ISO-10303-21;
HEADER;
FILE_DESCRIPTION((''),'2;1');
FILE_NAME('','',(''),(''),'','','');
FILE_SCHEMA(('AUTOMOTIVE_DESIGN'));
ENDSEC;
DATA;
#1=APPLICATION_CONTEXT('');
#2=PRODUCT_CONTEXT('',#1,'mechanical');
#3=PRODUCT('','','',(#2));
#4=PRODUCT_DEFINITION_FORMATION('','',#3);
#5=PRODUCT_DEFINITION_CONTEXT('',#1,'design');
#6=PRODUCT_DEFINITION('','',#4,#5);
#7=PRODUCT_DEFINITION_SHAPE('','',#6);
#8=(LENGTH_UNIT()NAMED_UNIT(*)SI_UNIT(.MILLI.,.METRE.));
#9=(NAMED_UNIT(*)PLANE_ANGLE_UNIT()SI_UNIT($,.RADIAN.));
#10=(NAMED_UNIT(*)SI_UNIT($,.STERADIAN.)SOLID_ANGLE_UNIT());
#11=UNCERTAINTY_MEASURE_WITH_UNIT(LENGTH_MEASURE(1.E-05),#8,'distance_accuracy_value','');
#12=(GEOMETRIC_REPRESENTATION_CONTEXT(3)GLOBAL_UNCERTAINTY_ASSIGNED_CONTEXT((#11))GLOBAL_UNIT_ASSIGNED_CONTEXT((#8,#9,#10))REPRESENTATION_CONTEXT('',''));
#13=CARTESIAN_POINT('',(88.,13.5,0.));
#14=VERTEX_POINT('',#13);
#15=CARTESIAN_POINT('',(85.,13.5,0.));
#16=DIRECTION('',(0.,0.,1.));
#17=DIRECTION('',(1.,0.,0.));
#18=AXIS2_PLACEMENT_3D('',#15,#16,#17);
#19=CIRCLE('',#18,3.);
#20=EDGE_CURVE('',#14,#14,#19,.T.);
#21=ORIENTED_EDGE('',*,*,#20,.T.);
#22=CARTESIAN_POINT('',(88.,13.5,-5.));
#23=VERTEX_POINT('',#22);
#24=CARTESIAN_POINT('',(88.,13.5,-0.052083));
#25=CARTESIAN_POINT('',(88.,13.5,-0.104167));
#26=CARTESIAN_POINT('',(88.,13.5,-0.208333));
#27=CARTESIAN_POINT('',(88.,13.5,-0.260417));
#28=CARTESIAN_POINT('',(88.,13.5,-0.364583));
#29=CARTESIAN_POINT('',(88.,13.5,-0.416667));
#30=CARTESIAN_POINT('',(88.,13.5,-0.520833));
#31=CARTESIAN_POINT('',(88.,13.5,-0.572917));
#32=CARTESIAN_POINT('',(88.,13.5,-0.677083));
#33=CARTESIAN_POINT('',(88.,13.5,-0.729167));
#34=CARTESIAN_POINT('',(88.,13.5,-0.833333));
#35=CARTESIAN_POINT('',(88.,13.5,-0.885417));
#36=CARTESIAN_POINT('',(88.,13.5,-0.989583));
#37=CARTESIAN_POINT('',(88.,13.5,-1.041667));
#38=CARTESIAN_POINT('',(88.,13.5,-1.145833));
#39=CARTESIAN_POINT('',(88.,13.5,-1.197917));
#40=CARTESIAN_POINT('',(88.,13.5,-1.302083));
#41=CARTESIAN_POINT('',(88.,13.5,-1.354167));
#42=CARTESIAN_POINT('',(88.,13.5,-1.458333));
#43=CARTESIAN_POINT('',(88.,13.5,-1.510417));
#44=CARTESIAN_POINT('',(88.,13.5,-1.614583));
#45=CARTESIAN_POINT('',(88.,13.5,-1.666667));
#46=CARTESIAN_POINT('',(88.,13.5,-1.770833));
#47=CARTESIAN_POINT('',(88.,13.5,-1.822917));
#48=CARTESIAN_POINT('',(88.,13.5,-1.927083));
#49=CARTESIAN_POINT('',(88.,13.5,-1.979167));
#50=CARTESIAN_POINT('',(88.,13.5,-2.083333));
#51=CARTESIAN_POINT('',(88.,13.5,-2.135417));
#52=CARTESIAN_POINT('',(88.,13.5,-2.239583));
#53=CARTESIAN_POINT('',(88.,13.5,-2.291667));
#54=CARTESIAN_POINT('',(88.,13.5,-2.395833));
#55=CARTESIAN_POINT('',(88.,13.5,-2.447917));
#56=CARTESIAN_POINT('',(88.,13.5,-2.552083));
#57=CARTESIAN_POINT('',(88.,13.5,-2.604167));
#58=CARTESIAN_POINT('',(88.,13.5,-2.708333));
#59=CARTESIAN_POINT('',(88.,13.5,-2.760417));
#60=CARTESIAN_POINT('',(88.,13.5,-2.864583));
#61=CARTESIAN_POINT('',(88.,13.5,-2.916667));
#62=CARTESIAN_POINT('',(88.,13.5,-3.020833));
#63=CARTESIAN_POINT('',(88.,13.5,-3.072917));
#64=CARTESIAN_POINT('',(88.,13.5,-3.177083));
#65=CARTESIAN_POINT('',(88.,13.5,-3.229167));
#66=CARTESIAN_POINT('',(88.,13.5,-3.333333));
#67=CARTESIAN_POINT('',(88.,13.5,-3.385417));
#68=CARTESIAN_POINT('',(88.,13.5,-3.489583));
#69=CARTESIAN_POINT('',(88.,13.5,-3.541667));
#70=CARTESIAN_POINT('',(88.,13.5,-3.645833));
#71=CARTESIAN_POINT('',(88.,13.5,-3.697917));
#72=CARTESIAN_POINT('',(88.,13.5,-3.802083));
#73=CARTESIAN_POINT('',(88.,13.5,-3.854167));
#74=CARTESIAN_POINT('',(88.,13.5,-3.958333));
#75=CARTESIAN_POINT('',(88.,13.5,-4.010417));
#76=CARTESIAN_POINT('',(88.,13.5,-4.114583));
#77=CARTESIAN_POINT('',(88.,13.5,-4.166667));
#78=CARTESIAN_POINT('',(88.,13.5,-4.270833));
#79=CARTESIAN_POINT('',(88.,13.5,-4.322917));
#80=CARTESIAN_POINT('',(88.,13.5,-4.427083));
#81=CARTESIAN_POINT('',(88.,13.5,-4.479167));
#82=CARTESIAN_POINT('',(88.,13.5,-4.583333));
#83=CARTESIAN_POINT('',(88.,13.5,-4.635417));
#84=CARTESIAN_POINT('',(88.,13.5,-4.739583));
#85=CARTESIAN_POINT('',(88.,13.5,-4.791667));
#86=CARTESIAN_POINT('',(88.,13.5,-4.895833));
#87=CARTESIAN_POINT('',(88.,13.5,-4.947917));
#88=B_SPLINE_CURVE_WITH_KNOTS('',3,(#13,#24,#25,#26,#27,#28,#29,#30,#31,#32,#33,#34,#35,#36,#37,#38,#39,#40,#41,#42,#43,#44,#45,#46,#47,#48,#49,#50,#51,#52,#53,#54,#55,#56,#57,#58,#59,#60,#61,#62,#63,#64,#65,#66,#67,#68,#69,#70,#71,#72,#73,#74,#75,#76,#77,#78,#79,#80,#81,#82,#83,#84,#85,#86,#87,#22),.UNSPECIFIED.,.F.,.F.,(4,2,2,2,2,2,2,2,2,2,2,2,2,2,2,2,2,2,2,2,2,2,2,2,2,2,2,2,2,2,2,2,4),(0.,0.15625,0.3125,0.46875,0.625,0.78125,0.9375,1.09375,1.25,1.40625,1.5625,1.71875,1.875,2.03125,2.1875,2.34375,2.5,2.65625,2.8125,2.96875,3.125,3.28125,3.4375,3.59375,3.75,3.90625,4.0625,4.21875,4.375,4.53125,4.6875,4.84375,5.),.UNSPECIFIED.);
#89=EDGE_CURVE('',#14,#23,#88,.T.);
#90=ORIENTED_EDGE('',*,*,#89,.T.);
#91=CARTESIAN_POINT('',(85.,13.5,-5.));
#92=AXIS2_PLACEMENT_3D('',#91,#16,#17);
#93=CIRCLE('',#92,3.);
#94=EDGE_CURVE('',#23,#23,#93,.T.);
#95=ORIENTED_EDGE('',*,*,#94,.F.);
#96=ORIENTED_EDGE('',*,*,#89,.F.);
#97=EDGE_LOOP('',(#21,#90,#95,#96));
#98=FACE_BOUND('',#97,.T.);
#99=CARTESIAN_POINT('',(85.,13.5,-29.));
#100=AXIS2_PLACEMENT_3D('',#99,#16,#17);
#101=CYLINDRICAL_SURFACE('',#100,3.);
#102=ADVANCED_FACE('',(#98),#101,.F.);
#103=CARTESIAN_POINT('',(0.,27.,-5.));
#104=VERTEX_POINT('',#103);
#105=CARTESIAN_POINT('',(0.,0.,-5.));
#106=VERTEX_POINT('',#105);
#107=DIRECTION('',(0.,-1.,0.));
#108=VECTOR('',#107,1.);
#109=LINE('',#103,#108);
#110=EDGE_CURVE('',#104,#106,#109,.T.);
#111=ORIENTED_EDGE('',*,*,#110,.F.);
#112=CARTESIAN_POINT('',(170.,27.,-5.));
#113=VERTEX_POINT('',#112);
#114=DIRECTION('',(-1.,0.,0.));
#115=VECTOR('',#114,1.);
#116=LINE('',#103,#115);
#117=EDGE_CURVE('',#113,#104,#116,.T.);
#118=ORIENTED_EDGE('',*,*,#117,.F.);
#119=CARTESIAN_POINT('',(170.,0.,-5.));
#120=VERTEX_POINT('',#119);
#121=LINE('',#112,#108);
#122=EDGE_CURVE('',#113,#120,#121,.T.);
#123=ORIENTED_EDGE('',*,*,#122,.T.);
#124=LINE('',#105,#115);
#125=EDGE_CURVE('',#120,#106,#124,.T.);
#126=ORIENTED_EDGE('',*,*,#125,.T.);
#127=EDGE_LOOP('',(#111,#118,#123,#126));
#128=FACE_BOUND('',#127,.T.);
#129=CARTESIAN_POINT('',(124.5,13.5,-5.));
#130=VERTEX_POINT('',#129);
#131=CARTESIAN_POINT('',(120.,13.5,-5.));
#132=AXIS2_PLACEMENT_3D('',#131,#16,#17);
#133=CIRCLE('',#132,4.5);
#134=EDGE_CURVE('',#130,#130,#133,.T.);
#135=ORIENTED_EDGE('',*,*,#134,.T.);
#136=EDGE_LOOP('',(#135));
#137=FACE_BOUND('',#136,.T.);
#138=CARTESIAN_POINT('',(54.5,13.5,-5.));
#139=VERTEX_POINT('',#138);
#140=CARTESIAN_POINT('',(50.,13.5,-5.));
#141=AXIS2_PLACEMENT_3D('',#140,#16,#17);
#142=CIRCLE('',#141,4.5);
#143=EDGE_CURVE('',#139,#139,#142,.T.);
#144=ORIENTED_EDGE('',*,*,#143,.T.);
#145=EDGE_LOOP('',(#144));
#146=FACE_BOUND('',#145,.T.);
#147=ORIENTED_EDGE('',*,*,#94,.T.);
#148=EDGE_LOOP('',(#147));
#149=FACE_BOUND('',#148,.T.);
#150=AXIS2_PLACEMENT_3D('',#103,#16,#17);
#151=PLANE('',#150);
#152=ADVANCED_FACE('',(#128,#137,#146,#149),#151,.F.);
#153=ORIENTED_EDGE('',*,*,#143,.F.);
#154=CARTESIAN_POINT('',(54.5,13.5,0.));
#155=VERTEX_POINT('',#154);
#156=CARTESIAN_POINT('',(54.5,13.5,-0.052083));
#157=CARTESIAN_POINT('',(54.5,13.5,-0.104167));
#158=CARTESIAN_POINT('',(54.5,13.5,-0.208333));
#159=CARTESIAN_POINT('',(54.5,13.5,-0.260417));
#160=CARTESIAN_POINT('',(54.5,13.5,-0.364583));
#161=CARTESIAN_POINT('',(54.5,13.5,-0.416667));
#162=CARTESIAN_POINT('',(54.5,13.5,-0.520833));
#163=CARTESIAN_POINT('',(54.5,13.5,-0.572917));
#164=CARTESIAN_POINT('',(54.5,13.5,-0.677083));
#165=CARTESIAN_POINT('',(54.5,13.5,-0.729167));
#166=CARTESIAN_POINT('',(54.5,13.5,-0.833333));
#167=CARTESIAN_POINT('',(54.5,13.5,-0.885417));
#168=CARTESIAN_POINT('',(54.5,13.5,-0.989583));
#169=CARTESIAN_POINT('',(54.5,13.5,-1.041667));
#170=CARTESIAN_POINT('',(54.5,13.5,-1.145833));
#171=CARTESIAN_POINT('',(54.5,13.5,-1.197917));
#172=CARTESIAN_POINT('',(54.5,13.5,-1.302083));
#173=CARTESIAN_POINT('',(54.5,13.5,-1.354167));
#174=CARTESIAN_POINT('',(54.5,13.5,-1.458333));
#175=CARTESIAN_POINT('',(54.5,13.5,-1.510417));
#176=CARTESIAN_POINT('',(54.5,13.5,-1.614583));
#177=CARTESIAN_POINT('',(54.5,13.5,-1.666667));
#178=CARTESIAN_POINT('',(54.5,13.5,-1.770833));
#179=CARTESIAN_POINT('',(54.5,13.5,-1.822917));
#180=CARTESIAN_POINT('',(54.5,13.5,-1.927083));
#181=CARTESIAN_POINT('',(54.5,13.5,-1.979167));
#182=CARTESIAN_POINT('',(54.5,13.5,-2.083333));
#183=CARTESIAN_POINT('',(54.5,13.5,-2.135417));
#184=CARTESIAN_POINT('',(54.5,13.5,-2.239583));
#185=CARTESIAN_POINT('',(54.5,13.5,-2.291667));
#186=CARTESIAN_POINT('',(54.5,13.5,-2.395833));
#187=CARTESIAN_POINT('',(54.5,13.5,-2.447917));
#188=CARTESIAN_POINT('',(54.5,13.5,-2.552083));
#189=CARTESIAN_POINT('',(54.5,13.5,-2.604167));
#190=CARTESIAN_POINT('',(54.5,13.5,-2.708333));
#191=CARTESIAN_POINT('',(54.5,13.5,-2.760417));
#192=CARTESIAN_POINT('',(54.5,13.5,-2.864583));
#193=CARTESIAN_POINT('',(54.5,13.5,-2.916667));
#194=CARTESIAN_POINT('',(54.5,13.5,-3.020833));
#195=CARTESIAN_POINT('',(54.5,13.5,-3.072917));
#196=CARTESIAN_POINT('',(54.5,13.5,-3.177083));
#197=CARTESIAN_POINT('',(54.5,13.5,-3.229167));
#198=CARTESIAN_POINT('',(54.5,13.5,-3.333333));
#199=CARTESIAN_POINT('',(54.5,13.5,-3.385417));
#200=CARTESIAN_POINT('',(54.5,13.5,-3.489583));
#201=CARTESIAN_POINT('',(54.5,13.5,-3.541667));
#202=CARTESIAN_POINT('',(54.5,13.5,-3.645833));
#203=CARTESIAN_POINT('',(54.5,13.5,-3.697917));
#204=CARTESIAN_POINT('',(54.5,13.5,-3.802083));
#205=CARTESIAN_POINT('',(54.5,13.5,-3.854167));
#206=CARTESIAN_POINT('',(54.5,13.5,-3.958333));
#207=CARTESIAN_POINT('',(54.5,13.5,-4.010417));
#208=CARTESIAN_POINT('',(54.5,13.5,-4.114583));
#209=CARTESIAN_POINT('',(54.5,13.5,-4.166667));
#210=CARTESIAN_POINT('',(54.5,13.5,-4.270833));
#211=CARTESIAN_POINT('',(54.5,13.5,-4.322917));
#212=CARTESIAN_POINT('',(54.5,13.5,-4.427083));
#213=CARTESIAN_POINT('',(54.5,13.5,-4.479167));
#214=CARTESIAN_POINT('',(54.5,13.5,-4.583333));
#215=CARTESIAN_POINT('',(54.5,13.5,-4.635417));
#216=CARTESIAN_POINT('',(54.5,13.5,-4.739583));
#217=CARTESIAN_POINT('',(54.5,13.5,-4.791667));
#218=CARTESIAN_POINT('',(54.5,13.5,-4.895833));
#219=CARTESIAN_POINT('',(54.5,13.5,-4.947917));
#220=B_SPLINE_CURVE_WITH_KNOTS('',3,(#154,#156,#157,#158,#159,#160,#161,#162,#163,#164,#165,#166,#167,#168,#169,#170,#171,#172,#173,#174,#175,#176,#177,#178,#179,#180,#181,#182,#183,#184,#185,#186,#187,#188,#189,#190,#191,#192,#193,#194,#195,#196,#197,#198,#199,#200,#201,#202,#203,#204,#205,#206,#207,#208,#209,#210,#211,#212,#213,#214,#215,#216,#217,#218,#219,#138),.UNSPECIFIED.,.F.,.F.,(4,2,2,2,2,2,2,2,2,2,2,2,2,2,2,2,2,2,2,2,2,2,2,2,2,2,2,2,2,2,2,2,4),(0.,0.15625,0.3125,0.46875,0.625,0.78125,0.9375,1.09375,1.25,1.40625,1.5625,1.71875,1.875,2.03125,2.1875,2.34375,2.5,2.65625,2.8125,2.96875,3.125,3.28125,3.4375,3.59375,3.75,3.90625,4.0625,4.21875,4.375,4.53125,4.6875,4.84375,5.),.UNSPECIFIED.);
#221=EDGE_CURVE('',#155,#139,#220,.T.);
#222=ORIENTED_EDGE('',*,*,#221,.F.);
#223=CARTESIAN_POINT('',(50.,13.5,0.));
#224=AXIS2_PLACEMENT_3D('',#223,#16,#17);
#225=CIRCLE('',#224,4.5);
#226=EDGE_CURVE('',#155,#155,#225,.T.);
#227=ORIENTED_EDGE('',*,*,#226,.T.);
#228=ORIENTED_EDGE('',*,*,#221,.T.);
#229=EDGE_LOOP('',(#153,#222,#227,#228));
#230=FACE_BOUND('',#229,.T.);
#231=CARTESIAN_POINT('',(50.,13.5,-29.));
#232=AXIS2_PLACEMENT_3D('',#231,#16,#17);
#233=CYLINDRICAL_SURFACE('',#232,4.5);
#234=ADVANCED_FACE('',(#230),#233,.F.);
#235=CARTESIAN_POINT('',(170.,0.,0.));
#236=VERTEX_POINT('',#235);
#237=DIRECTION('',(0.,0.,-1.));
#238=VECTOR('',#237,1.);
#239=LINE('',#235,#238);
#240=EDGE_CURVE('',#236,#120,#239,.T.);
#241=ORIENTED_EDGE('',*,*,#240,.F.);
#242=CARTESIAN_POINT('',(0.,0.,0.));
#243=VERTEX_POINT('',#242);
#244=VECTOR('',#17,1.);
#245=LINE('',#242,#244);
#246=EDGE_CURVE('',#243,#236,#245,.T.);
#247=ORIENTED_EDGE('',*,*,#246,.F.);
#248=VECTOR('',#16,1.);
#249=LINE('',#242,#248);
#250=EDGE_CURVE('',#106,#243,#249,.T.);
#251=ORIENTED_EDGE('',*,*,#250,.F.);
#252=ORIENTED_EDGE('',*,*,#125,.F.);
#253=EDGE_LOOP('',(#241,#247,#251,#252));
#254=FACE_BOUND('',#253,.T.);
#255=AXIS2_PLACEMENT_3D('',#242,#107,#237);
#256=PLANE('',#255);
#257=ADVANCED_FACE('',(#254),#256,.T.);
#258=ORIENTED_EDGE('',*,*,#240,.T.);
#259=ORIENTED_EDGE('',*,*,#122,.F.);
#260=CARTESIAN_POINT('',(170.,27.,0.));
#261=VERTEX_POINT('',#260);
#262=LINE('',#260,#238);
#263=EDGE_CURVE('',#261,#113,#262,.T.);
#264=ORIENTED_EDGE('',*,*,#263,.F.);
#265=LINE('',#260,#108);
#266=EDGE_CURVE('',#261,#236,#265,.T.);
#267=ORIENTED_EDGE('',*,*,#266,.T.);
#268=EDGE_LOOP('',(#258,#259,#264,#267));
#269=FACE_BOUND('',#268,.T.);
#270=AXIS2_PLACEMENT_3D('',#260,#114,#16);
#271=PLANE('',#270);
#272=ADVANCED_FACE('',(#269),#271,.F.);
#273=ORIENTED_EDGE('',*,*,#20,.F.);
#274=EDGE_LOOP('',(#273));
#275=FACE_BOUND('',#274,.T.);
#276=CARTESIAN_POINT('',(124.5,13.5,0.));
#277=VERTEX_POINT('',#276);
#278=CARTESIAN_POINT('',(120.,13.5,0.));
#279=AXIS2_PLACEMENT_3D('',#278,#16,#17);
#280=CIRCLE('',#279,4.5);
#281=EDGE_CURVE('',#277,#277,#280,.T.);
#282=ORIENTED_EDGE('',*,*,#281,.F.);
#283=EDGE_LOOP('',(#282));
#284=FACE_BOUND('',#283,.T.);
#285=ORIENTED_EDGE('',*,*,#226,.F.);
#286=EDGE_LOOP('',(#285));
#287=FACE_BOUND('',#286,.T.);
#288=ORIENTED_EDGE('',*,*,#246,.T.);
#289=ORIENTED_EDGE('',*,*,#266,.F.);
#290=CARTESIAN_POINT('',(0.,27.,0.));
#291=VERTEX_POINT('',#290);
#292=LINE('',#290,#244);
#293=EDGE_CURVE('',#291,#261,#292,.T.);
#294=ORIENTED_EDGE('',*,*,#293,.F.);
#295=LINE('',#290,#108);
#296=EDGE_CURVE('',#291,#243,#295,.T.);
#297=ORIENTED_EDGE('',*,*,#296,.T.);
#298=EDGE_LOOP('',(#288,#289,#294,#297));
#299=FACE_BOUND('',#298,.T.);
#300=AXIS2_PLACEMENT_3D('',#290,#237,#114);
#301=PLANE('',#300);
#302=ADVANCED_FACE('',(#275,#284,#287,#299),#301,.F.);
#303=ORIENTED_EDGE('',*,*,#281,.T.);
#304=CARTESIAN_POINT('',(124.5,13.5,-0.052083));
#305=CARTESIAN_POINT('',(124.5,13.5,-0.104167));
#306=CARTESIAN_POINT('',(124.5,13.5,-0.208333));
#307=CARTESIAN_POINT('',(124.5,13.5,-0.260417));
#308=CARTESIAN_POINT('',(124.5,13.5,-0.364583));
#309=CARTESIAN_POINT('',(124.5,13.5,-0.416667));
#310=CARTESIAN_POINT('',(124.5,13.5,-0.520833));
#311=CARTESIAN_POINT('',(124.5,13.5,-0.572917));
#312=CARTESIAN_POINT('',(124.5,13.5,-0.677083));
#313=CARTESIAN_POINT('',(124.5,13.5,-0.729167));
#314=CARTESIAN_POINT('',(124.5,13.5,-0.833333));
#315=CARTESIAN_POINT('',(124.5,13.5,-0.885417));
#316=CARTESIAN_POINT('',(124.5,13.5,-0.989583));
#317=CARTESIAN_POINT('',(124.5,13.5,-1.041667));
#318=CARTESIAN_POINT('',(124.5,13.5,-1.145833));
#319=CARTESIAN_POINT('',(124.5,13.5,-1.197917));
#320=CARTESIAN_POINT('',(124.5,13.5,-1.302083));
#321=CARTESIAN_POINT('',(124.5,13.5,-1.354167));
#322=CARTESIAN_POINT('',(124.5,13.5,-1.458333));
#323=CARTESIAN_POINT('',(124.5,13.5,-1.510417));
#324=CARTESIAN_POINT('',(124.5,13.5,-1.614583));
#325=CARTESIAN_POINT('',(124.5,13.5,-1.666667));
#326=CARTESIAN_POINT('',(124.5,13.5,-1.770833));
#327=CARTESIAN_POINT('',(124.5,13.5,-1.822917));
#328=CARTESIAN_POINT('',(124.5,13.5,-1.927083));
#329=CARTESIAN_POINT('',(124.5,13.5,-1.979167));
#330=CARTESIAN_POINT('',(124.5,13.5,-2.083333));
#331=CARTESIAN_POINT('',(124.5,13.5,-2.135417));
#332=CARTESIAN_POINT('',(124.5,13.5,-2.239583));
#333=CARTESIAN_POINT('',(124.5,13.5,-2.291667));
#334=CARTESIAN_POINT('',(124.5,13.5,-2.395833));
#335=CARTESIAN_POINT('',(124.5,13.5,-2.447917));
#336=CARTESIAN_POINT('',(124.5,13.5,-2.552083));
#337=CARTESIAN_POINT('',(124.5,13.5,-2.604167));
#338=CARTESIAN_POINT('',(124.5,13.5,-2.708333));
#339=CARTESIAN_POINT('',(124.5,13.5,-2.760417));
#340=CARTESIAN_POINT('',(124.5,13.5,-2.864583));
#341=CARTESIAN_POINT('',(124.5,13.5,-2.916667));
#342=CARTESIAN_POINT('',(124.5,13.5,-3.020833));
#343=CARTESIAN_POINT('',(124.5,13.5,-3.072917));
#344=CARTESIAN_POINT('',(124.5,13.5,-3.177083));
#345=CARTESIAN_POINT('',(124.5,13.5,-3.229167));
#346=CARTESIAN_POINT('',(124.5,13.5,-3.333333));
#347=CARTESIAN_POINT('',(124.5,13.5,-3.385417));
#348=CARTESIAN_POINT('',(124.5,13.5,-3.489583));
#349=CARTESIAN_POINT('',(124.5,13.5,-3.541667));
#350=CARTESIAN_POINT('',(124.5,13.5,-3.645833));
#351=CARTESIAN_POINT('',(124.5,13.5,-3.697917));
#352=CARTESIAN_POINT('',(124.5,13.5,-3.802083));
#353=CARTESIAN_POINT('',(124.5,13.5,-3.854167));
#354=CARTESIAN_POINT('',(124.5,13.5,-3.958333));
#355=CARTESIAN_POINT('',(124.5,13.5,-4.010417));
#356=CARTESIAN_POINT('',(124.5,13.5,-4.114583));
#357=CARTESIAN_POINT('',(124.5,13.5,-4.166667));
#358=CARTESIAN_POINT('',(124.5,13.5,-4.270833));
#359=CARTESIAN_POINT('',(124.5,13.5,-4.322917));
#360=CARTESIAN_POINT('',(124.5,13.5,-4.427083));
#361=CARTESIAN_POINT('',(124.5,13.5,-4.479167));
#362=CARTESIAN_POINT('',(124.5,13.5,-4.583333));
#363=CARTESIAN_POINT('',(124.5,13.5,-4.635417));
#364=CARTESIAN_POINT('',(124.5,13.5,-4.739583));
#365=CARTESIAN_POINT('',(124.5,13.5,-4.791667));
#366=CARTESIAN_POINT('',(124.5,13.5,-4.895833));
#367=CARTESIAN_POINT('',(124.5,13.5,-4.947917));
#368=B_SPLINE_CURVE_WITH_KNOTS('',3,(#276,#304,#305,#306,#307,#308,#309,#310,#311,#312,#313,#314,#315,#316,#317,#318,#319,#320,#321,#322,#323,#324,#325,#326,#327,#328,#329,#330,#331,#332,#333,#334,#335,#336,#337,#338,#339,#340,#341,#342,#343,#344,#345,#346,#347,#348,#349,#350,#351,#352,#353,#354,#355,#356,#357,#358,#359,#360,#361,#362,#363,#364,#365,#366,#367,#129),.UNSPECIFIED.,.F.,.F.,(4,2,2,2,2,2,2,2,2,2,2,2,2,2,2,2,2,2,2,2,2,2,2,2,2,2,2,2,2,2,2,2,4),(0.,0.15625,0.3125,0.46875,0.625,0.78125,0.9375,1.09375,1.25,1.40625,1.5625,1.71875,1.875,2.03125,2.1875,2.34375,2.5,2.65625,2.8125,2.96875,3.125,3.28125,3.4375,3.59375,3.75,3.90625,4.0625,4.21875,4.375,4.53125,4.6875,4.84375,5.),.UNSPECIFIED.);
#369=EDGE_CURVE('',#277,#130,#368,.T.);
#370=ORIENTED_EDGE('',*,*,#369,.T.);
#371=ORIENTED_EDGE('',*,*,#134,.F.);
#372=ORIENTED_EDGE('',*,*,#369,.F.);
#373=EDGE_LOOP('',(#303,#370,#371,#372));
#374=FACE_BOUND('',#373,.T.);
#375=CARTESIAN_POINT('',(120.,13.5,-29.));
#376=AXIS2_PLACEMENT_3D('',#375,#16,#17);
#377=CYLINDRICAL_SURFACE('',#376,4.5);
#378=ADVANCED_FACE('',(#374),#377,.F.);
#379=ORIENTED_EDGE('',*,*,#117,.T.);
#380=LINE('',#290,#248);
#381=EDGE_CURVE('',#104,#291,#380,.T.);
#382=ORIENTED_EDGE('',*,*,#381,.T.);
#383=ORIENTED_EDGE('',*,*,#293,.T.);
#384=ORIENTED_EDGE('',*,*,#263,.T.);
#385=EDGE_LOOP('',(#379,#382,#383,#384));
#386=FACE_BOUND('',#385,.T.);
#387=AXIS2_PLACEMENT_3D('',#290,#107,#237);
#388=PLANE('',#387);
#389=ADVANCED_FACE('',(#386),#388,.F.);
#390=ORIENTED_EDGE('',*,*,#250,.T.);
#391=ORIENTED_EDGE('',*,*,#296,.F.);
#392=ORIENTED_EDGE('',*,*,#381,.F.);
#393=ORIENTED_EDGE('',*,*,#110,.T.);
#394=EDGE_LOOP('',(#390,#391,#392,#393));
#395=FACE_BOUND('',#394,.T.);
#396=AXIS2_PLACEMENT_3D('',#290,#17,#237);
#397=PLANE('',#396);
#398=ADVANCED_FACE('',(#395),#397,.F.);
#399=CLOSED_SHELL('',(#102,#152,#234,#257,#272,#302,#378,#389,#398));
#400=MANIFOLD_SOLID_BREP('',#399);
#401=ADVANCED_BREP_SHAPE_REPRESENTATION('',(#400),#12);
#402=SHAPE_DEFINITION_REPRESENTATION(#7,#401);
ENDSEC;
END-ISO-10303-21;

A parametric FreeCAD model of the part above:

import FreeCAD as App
import Part
import Sketcher
from FreeCAD import Vector

doc = App.newDocument("Part")
body = doc.addObject("PartDesign::Body", "Body")

sketch1 = body.newObject("Sketcher::SketchObject", "Sketch")
sketch1.AttachmentSupport = (doc.getObject("XZ_Plane"), [""])
sketch1.MapMode = "FlatFace"
sketch1.addGeometry([
    Part.LineSegment(Vector(0, -5, 0), Vector(0, 0, 0)),
    Part.LineSegment(Vector(0, 0, 0), Vector(170, 0, 0)),
    Part.LineSegment(Vector(170, 0, 0), Vector(170, -5, 0)),
    Part.LineSegment(Vector(170, -5, 0), Vector(0, -5, 0)),
], False)
sketch1.addConstraint([
    Sketcher.Constraint("Coincident", 0, 2, 1, 1),
    Sketcher.Constraint("Coincident", 1, 2, 2, 1),
    Sketcher.Constraint("Coincident", 2, 2, 3, 1),
    Sketcher.Constraint("Coincident", 3, 2, 0, 1),
    Sketcher.Constraint("Vertical", 0),
    Sketcher.Constraint("Horizontal", 1),
    Sketcher.Constraint("Vertical", 2),
    Sketcher.Constraint("Horizontal", 3),
    Sketcher.Constraint("Coincident", 0, 2, -1, 1),
    Sketcher.Constraint("DistanceX", 1, 1, 1, 2, 170.0),
    Sketcher.Constraint("DistanceY", 0, 1, 0, 2, 5.0),
])
pad1 = body.newObject("PartDesign::Pad", "Pad")
pad1.Profile = sketch1
pad1.Length = 27
pad1.Reversed = True

sketch2 = body.newObject("Sketcher::SketchObject", "Sketch001")
sketch2.AttachmentSupport = (doc.getObject("XY_Plane"), [""])
sketch2.MapMode = "FlatFace"
sketch2.addGeometry([
    Part.Circle(Vector(85, 13.5, 0), Vector(0, 0, 1), 3),
    Part.Circle(Vector(120, 13.5, 0), Vector(0, 0, 1), 4.5),
    Part.Circle(Vector(50, 13.5, 0), Vector(0, 0, 1), 4.5),
], False)
sketch2.addConstraint([
    Sketcher.Constraint("Equal", 1, 2),
    Sketcher.Constraint("Horizontal", 0, 3, 1, 3),
    Sketcher.Constraint("Horizontal", 1, 3, 2, 3),
    Sketcher.Constraint("Diameter", 0, 6.0),
    Sketcher.Constraint("Diameter", 1, 9.0),
    Sketcher.Constraint("DistanceX", -1, 1, 0, 3, 85.0),
    Sketcher.Constraint("DistanceX", -1, 1, 1, 3, 120.0),
    Sketcher.Constraint("DistanceX", -1, 1, 2, 3, 50.0),
    Sketcher.Constraint("DistanceY", -1, 1, 0, 3, 13.5),
])
pocket1 = body.newObject("PartDesign::Pocket", "Pocket")
pocket1.Profile = sketch2
pocket1.Length = 29

doc.recompute()
